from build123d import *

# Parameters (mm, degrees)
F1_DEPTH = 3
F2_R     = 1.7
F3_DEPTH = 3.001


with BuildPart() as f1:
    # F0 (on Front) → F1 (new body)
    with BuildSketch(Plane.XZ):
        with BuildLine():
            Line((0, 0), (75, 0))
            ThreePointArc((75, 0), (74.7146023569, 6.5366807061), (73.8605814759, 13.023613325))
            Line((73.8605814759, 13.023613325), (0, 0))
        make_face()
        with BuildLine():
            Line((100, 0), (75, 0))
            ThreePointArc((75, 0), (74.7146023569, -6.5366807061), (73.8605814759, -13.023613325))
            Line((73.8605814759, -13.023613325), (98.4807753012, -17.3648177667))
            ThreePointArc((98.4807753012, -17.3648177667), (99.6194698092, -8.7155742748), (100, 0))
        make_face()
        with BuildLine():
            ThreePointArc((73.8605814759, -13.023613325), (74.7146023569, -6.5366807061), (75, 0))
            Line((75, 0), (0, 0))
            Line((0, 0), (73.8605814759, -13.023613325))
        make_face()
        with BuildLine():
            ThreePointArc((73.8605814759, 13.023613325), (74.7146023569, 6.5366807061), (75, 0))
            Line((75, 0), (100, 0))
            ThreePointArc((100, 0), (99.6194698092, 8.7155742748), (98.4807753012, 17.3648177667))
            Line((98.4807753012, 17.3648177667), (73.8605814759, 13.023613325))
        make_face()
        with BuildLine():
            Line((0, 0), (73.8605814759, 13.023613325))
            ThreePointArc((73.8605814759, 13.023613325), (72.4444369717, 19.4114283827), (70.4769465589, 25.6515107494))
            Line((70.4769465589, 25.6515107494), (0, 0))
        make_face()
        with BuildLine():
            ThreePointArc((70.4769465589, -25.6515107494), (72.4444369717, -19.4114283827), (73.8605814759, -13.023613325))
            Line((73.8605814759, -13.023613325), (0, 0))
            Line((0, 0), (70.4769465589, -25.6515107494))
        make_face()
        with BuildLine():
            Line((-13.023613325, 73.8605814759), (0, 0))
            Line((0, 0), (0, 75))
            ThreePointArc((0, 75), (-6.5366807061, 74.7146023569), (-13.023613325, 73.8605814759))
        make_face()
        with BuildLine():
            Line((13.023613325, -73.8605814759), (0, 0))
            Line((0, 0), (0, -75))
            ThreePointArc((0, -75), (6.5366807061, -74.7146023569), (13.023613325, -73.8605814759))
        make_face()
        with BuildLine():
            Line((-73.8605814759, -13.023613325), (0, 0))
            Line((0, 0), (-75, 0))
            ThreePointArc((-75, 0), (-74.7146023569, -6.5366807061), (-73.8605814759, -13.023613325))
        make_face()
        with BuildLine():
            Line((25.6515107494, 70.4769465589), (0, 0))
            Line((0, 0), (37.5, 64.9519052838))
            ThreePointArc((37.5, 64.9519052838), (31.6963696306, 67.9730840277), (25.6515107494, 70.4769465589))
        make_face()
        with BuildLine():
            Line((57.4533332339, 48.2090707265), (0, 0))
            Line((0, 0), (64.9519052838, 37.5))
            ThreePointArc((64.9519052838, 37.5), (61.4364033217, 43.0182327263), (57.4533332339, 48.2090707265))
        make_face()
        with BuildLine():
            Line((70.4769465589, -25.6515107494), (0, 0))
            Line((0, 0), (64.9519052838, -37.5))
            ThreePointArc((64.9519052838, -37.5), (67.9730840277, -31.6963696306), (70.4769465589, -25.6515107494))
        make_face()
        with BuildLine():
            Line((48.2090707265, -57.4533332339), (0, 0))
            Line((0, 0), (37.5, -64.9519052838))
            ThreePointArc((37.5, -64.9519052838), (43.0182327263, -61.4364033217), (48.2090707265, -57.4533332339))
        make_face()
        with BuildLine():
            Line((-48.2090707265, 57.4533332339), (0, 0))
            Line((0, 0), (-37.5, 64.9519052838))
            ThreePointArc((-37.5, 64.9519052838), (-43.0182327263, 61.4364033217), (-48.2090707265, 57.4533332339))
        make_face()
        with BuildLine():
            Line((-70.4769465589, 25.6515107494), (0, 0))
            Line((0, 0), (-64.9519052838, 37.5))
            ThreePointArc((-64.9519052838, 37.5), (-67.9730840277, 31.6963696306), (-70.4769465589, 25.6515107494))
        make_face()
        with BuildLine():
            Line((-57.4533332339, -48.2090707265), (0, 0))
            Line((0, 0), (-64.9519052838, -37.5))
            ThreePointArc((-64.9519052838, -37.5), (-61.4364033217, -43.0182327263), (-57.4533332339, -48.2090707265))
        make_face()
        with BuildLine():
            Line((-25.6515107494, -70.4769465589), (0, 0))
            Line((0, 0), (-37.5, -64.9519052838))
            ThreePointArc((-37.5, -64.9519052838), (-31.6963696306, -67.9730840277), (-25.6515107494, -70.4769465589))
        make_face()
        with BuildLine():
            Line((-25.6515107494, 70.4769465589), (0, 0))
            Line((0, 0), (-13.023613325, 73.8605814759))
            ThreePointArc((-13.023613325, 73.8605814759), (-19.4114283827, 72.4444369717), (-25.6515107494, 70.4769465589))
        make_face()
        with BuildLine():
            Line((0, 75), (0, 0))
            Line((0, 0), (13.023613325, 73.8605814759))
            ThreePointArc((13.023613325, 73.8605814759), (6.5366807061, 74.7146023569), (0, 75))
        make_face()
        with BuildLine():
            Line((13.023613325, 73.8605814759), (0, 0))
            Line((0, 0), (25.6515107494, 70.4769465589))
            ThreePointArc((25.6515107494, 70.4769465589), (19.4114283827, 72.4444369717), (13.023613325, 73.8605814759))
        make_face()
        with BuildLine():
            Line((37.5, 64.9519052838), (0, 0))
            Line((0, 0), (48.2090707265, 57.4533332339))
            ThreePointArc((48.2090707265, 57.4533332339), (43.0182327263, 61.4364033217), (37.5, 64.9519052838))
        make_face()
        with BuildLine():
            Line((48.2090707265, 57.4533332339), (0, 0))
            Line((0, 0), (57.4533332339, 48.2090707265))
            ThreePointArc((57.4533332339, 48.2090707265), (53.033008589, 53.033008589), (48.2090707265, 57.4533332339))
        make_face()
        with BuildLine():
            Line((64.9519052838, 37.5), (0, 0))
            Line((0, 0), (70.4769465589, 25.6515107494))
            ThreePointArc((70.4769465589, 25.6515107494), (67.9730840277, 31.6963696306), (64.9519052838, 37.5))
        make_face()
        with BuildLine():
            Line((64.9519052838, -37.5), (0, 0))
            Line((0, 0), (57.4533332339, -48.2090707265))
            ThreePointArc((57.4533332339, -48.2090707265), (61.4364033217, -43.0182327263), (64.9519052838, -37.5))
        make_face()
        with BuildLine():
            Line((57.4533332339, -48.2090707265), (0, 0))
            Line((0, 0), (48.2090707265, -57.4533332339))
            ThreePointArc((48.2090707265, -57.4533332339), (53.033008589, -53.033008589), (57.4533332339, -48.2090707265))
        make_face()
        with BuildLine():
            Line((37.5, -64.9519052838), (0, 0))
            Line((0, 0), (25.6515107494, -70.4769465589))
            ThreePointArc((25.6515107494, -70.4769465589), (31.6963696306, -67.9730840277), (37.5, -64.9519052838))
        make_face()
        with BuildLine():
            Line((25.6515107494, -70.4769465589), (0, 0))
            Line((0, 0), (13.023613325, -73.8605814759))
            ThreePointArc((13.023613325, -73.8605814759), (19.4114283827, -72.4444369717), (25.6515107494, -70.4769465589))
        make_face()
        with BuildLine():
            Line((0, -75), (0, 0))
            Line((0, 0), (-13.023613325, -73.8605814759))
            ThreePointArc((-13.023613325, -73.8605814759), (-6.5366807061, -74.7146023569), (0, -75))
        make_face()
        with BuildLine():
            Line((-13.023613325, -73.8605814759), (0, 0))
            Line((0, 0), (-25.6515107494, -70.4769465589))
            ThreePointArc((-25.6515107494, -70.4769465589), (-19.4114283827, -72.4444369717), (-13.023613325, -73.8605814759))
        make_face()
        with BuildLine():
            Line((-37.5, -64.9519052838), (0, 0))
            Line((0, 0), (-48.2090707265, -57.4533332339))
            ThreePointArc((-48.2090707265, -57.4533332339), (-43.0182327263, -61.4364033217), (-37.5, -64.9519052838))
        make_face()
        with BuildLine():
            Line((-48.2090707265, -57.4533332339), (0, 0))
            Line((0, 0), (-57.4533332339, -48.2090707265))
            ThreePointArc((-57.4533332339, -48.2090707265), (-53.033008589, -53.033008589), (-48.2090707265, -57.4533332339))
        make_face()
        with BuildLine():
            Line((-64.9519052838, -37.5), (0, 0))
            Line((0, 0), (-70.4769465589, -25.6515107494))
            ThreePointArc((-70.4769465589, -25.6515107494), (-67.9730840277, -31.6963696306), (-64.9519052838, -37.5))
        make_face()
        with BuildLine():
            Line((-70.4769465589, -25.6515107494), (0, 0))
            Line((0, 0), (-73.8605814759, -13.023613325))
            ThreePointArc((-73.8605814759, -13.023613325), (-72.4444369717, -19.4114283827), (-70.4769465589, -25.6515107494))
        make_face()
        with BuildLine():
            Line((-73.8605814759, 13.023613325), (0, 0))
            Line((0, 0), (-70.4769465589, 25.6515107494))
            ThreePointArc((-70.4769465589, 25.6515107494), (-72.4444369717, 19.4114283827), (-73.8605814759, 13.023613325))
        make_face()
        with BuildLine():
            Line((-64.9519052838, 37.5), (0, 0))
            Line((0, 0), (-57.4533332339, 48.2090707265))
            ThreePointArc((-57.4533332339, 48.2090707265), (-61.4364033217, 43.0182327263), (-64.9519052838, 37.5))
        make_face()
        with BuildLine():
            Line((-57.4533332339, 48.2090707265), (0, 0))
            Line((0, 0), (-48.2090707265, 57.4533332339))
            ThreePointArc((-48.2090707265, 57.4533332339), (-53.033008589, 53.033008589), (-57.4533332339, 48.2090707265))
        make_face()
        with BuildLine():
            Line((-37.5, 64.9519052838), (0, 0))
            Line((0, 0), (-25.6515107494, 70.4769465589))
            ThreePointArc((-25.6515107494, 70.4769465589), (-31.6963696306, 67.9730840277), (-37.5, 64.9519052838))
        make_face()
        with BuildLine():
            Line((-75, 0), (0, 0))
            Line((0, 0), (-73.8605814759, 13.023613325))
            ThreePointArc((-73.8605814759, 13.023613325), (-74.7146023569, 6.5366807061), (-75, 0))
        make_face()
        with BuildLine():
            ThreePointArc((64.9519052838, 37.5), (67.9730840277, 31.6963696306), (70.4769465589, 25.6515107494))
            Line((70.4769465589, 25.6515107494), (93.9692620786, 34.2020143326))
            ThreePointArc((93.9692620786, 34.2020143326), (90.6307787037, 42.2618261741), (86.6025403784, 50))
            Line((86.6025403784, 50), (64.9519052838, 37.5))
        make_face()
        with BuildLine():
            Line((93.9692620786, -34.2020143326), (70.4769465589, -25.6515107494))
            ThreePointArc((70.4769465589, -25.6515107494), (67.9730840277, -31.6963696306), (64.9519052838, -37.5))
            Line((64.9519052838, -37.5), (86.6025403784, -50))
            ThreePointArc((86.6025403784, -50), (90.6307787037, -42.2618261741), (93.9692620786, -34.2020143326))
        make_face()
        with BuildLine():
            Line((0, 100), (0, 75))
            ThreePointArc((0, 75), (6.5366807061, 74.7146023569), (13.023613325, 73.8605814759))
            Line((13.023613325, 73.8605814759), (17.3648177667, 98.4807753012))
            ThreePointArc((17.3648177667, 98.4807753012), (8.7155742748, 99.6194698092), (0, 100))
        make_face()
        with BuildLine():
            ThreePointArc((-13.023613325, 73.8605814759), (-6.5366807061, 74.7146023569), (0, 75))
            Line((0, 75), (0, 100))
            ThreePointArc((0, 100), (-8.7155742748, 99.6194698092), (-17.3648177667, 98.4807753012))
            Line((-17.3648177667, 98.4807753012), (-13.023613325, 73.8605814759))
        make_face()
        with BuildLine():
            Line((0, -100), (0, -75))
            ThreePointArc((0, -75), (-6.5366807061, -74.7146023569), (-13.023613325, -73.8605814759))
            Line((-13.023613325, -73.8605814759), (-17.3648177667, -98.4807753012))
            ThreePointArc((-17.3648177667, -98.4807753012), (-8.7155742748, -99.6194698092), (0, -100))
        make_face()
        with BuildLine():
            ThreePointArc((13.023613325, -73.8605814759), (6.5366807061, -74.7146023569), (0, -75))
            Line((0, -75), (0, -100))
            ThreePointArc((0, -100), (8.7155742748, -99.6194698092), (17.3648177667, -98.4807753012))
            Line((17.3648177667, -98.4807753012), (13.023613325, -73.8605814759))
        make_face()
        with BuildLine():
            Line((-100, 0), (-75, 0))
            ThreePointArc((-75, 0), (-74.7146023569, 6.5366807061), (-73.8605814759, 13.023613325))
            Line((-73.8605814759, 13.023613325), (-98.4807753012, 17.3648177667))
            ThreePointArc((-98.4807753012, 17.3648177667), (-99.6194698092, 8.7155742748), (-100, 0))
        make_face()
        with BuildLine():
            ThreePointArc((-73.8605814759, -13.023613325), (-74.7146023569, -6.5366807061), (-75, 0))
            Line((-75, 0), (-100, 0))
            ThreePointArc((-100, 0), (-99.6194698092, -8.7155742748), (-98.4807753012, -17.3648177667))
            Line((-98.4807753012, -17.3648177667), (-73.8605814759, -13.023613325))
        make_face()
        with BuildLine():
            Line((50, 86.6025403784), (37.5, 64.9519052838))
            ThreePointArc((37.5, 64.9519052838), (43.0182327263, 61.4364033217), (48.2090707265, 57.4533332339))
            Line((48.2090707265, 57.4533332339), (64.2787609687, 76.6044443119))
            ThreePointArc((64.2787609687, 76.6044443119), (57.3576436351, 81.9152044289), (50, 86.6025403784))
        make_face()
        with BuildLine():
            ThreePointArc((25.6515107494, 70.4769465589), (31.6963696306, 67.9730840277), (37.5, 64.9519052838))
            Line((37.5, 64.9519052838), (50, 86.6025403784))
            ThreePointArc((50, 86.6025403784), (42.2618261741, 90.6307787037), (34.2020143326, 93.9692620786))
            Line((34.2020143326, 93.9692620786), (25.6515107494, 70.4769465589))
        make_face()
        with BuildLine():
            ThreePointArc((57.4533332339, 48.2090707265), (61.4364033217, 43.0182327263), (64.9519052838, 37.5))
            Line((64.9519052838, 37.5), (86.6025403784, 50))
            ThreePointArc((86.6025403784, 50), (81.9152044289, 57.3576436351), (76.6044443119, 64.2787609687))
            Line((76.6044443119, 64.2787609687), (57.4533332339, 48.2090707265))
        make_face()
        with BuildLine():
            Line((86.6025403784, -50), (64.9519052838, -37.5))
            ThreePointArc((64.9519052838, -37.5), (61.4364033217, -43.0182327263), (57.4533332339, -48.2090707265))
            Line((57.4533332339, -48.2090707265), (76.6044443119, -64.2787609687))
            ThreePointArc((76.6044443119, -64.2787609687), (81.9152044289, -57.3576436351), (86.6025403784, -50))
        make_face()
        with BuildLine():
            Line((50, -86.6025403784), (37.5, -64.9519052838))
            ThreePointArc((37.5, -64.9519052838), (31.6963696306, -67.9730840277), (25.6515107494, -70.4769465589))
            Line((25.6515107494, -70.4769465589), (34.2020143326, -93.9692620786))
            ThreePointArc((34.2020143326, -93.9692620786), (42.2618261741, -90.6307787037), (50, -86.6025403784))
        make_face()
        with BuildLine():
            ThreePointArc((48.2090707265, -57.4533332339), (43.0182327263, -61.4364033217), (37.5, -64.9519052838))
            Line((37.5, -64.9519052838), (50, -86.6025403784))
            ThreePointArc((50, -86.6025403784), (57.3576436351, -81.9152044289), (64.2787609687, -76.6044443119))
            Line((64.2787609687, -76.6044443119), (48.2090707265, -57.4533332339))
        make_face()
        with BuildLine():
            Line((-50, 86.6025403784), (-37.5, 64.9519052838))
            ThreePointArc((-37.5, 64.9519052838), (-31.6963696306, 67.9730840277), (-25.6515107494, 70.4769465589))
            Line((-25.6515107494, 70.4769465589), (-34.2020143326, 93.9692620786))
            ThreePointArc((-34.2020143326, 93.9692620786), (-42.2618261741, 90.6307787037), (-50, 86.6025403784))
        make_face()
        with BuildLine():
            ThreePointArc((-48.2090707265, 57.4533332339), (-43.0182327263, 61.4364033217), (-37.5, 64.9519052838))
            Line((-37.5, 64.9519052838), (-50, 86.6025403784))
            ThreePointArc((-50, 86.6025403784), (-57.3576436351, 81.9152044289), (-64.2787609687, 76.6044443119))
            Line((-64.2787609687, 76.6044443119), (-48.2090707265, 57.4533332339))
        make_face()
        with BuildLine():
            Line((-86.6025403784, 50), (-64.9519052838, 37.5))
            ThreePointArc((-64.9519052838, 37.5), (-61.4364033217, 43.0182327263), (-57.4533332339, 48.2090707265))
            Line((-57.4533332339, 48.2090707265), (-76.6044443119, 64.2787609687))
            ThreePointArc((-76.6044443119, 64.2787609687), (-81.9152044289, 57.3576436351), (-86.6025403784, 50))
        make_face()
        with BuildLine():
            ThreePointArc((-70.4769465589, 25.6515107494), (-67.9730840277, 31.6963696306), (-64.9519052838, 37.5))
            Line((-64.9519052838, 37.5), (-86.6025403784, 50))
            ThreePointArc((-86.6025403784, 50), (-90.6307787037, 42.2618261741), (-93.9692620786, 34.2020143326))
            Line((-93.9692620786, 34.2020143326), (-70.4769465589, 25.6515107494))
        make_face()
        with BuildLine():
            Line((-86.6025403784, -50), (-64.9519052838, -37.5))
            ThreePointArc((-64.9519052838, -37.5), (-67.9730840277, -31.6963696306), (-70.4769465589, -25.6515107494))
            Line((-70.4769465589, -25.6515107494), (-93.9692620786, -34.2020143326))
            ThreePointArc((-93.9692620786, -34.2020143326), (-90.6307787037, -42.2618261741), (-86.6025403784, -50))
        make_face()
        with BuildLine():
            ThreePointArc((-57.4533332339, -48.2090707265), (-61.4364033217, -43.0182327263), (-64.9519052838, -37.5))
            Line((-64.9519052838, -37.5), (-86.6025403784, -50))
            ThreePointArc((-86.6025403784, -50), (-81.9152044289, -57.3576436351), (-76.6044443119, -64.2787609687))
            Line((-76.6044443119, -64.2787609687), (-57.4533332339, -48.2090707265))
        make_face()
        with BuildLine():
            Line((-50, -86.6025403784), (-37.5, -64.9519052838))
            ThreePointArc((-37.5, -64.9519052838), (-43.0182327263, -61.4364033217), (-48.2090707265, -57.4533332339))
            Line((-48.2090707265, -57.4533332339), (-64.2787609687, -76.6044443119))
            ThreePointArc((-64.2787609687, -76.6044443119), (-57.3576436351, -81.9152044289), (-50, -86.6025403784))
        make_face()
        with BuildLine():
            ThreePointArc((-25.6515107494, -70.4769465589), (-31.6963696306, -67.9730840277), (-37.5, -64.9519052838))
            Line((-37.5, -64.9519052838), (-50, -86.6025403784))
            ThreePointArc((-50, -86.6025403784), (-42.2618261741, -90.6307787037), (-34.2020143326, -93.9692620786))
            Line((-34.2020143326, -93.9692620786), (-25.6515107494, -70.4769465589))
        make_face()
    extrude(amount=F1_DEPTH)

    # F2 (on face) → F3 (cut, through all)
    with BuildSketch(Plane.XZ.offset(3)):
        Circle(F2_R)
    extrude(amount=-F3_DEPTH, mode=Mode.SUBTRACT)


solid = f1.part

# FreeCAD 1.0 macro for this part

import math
import FreeCAD as App
import Part
import Sketcher

V = App.Vector
Q = App.Units.Quantity

doc = App.newDocument("Part")
params = doc.addObject("Spreadsheet::Sheet", "Params")
for row, (alias, value) in enumerate([
    ("sketch1_radius", "100 mm"),
    ("sketch1_radius2", "75 mm"),
    ("pad1_length", "3 mm"),
    ("sketch2_diameter", "3.4 mm"),
], start=1):
    params.set(f"A{row}", alias)
    params.set(f"B{row}", "=" + value)
    params.setAlias(f"B{row}", alias)

body = doc.addObject("PartDesign::Body", "Body")

# Sketch on XZ plane
sketch1 = body.newObject("Sketcher::SketchObject", "Sketch")
sketch1.AttachmentSupport = (doc.getObject("XZ_Plane"), [""])
sketch1.MapMode = "FlatFace"
sketch1.addGeometry([
    Part.LineSegment(V(74, -13, 0), V(98, -17, 0)),  # 0
    Part.ArcOfCircle(Part.Circle(V(0, 0, 0), V(0, 0, 1), 100), math.radians(-10), math.radians(0)),  # 1
    Part.ArcOfCircle(Part.Circle(V(0, 0, 0), V(0, 0, 1), 100), math.radians(0), math.radians(10)),  # 2
    Part.LineSegment(V(98, 17, 0), V(74, 13, 0)),  # 3
    Part.ArcOfCircle(Part.Circle(V(0, 0, 0), V(0, 0, 1), 75), math.radians(10), math.radians(20)),  # 4
    Part.LineSegment(V(70, 26, 0), V(94, 34, 0)),  # 5
    Part.ArcOfCircle(Part.Circle(V(0, 0, 0), V(0, 0, 1), 100), math.radians(20), math.radians(30)),  # 6
    Part.ArcOfCircle(Part.Circle(V(0, 0, 0), V(0, 0, 1), 100), math.radians(30), math.radians(40)),  # 7
    Part.LineSegment(V(77, 64, 0), V(57, 48, 0)),  # 8
    Part.ArcOfCircle(Part.Circle(V(0, 0, 0), V(0, 0, 1), 75), math.radians(40), math.radians(50)),  # 9
    Part.LineSegment(V(48, 57, 0), V(64, 77, 0)),  # 10
    Part.ArcOfCircle(Part.Circle(V(0, 0, 0), V(0, 0, 1), 100), math.radians(50), math.radians(60)),  # 11
    Part.ArcOfCircle(Part.Circle(V(0, 0, 0), V(0, 0, 1), 100), math.radians(60), math.radians(70)),  # 12
    Part.LineSegment(V(34, 94, 0), V(26, 70, 0)),  # 13
    Part.ArcOfCircle(Part.Circle(V(0, 0, 0), V(0, 0, 1), 75), math.radians(70), math.radians(80)),  # 14
    Part.LineSegment(V(13, 74, 0), V(17, 98, 0)),  # 15
    Part.ArcOfCircle(Part.Circle(V(0, 0, 0), V(0, 0, 1), 100), math.radians(80), math.radians(90)),  # 16
    Part.ArcOfCircle(Part.Circle(V(0, 0, 0), V(0, 0, 1), 100), math.radians(90), math.radians(100)),  # 17
    Part.LineSegment(V(-17, 98, 0), V(-13, 74, 0)),  # 18
    Part.ArcOfCircle(Part.Circle(V(0, 0, 0), V(0, 0, 1), 75), math.radians(100), math.radians(110)),  # 19
    Part.LineSegment(V(-26, 70, 0), V(-34, 94, 0)),  # 20
    Part.ArcOfCircle(Part.Circle(V(0, 0, 0), V(0, 0, 1), 100), math.radians(110), math.radians(120)),  # 21
    Part.ArcOfCircle(Part.Circle(V(0, 0, 0), V(0, 0, 1), 100), math.radians(120), math.radians(130)),  # 22
    Part.LineSegment(V(-64, 77, 0), V(-48, 57, 0)),  # 23
    Part.ArcOfCircle(Part.Circle(V(0, 0, 0), V(0, 0, 1), 75), math.radians(130), math.radians(140)),  # 24
    Part.LineSegment(V(-57, 48, 0), V(-77, 64, 0)),  # 25
    Part.ArcOfCircle(Part.Circle(V(0, 0, 0), V(0, 0, 1), 100), math.radians(140), math.radians(150)),  # 26
    Part.ArcOfCircle(Part.Circle(V(0, 0, 0), V(0, 0, 1), 100), math.radians(150), math.radians(160)),  # 27
    Part.LineSegment(V(-94, 34, 0), V(-70, 26, 0)),  # 28
    Part.ArcOfCircle(Part.Circle(V(0, 0, 0), V(0, 0, 1), 75), math.radians(160), math.radians(170)),  # 29
    Part.LineSegment(V(-74, 13, 0), V(-98, 17, 0)),  # 30
    Part.ArcOfCircle(Part.Circle(V(0, 0, 0), V(0, 0, 1), 100), math.radians(170), math.radians(180)),  # 31
    Part.ArcOfCircle(Part.Circle(V(0, 0, 0), V(0, 0, 1), 100), math.radians(180), math.radians(190)),  # 32
    Part.LineSegment(V(-98, -17, 0), V(-74, -13, 0)),  # 33
    Part.ArcOfCircle(Part.Circle(V(0, 0, 0), V(0, 0, 1), 75), math.radians(-170), math.radians(-160)),  # 34
    Part.LineSegment(V(-70, -26, 0), V(-94, -34, 0)),  # 35
    Part.ArcOfCircle(Part.Circle(V(0, 0, 0), V(0, 0, 1), 100), math.radians(-160), math.radians(-150)),  # 36
    Part.ArcOfCircle(Part.Circle(V(0, 0, 0), V(0, 0, 1), 100), math.radians(-150), math.radians(-140)),  # 37
    Part.LineSegment(V(-77, -64, 0), V(-57, -48, 0)),  # 38
    Part.ArcOfCircle(Part.Circle(V(0, 0, 0), V(0, 0, 1), 75), math.radians(-140), math.radians(-130)),  # 39
    Part.LineSegment(V(-48, -57, 0), V(-64, -77, 0)),  # 40
    Part.ArcOfCircle(Part.Circle(V(0, 0, 0), V(0, 0, 1), 100), math.radians(-130), math.radians(-120)),  # 41
    Part.ArcOfCircle(Part.Circle(V(0, 0, 0), V(0, 0, 1), 100), math.radians(-120), math.radians(-110)),  # 42
    Part.LineSegment(V(-34, -94, 0), V(-26, -70, 0)),  # 43
    Part.ArcOfCircle(Part.Circle(V(0, 0, 0), V(0, 0, 1), 75), math.radians(-110), math.radians(-100)),  # 44
    Part.LineSegment(V(-13, -74, 0), V(-17, -98, 0)),  # 45
    Part.ArcOfCircle(Part.Circle(V(0, 0, 0), V(0, 0, 1), 100), math.radians(-100), math.radians(-90)),  # 46
    Part.ArcOfCircle(Part.Circle(V(0, 0, 0), V(0, 0, 1), 100), math.radians(-90), math.radians(-80)),  # 47
    Part.LineSegment(V(17, -98, 0), V(13, -74, 0)),  # 48
    Part.ArcOfCircle(Part.Circle(V(0, 0, 0), V(0, 0, 1), 75), math.radians(-80), math.radians(-70)),  # 49
    Part.LineSegment(V(26, -70, 0), V(34, -94, 0)),  # 50
    Part.ArcOfCircle(Part.Circle(V(0, 0, 0), V(0, 0, 1), 100), math.radians(-70), math.radians(-60)),  # 51
    Part.ArcOfCircle(Part.Circle(V(0, 0, 0), V(0, 0, 1), 100), math.radians(-60), math.radians(-50)),  # 52
    Part.LineSegment(V(64, -77, 0), V(48, -57, 0)),  # 53
    Part.ArcOfCircle(Part.Circle(V(0, 0, 0), V(0, 0, 1), 75), math.radians(-50), math.radians(-40)),  # 54
    Part.LineSegment(V(57, -48, 0), V(77, -64, 0)),  # 55
    Part.ArcOfCircle(Part.Circle(V(0, 0, 0), V(0, 0, 1), 100), math.radians(-40), math.radians(-30)),  # 56
    Part.ArcOfCircle(Part.Circle(V(0, 0, 0), V(0, 0, 1), 100), math.radians(-30), math.radians(-20)),  # 57
    Part.LineSegment(V(94, -34, 0), V(70, -26, 0)),  # 58
    Part.ArcOfCircle(Part.Circle(V(0, 0, 0), V(0, 0, 1), 75), math.radians(-20), math.radians(-10)),  # 59
], False)
sketch1.addConstraint([
    Sketcher.Constraint("Coincident", 0, 2, 1, 1),
    Sketcher.Constraint("Tangent", 1, 2, 2, 1),
    Sketcher.Constraint("Coincident", 2, 2, 3, 1),
    Sketcher.Constraint("Coincident", 3, 2, 4, 1),
    Sketcher.Constraint("Coincident", 4, 2, 5, 1),
    Sketcher.Constraint("Coincident", 5, 2, 6, 1),
    Sketcher.Constraint("Tangent", 6, 2, 7, 1),
    Sketcher.Constraint("Coincident", 7, 2, 8, 1),
    Sketcher.Constraint("Coincident", 8, 2, 9, 1),
    Sketcher.Constraint("Coincident", 9, 2, 10, 1),
    Sketcher.Constraint("Coincident", 10, 2, 11, 1),
    Sketcher.Constraint("Tangent", 11, 2, 12, 1),
    Sketcher.Constraint("Coincident", 12, 2, 13, 1),
    Sketcher.Constraint("Coincident", 13, 2, 14, 1),
    Sketcher.Constraint("Coincident", 14, 2, 15, 1),
    Sketcher.Constraint("Coincident", 15, 2, 16, 1),
    Sketcher.Constraint("Tangent", 16, 2, 17, 1),
    Sketcher.Constraint("Coincident", 17, 2, 18, 1),
    Sketcher.Constraint("Coincident", 18, 2, 19, 1),
    Sketcher.Constraint("Coincident", 19, 2, 20, 1),
    Sketcher.Constraint("Coincident", 20, 2, 21, 1),
    Sketcher.Constraint("Tangent", 21, 2, 22, 1),
    Sketcher.Constraint("Coincident", 22, 2, 23, 1),
    Sketcher.Constraint("Coincident", 23, 2, 24, 1),
    Sketcher.Constraint("Coincident", 24, 2, 25, 1),
    Sketcher.Constraint("Coincident", 25, 2, 26, 1),
    Sketcher.Constraint("Tangent", 26, 2, 27, 1),
    Sketcher.Constraint("Coincident", 27, 2, 28, 1),
    Sketcher.Constraint("Coincident", 28, 2, 29, 1),
    Sketcher.Constraint("Coincident", 29, 2, 30, 1),
    Sketcher.Constraint("Coincident", 30, 2, 31, 1),
    Sketcher.Constraint("Tangent", 31, 2, 32, 1),
    Sketcher.Constraint("Coincident", 32, 2, 33, 1),
    Sketcher.Constraint("Coincident", 33, 2, 34, 1),
    Sketcher.Constraint("Coincident", 34, 2, 35, 1),
    Sketcher.Constraint("Coincident", 35, 2, 36, 1),
    Sketcher.Constraint("Tangent", 36, 2, 37, 1),
    Sketcher.Constraint("Coincident", 37, 2, 38, 1),
    Sketcher.Constraint("Coincident", 38, 2, 39, 1),
    Sketcher.Constraint("Coincident", 39, 2, 40, 1),
    Sketcher.Constraint("Coincident", 40, 2, 41, 1),
    Sketcher.Constraint("Tangent", 41, 2, 42, 1),
    Sketcher.Constraint("Coincident", 42, 2, 43, 1),
    Sketcher.Constraint("Coincident", 43, 2, 44, 1),
    Sketcher.Constraint("Coincident", 44, 2, 45, 1),
    Sketcher.Constraint("Coincident", 45, 2, 46, 1),
    Sketcher.Constraint("Tangent", 46, 2, 47, 1),
    Sketcher.Constraint("Coincident", 47, 2, 48, 1),
    Sketcher.Constraint("Coincident", 48, 2, 49, 1),
    Sketcher.Constraint("Coincident", 49, 2, 50, 1),
    Sketcher.Constraint("Coincident", 50, 2, 51, 1),
    Sketcher.Constraint("Tangent", 51, 2, 52, 1),
    Sketcher.Constraint("Coincident", 52, 2, 53, 1),
    Sketcher.Constraint("Coincident", 53, 2, 54, 1),
    Sketcher.Constraint("Coincident", 54, 2, 55, 1),
    Sketcher.Constraint("Coincident", 55, 2, 56, 1),
    Sketcher.Constraint("Tangent", 56, 2, 57, 1),
    Sketcher.Constraint("Coincident", 57, 2, 58, 1),
    Sketcher.Constraint("Coincident", 58, 2, 59, 1),
    Sketcher.Constraint("Coincident", 59, 2, 0, 1),
    Sketcher.Constraint("Coincident", 1, 3, -1, 1),
    Sketcher.Constraint("Coincident", 4, 3, -1, 1),
    Sketcher.Constraint("Coincident", 6, 3, -1, 1),
    Sketcher.Constraint("Coincident", 9, 3, -1, 1),
    Sketcher.Constraint("Coincident", 11, 3, -1, 1),
    Sketcher.Constraint("Coincident", 14, 3, -1, 1),
    Sketcher.Constraint("Coincident", 16, 3, -1, 1),
    Sketcher.Constraint("Coincident", 19, 3, -1, 1),
    Sketcher.Constraint("Coincident", 21, 3, -1, 1),
    Sketcher.Constraint("Coincident", 24, 3, -1, 1),
    Sketcher.Constraint("Coincident", 26, 3, -1, 1),
    Sketcher.Constraint("Coincident", 29, 3, -1, 1),
    Sketcher.Constraint("Coincident", 31, 3, -1, 1),
    Sketcher.Constraint("Coincident", 34, 3, -1, 1),
    Sketcher.Constraint("Coincident", 36, 3, -1, 1),
    Sketcher.Constraint("Coincident", 39, 3, -1, 1),
    Sketcher.Constraint("Coincident", 41, 3, -1, 1),
    Sketcher.Constraint("Coincident", 44, 3, -1, 1),
    Sketcher.Constraint("Coincident", 46, 3, -1, 1),
    Sketcher.Constraint("Coincident", 49, 3, -1, 1),
    Sketcher.Constraint("Coincident", 51, 3, -1, 1),
    Sketcher.Constraint("Coincident", 54, 3, -1, 1),
    Sketcher.Constraint("Coincident", 56, 3, -1, 1),
    Sketcher.Constraint("Coincident", 59, 3, -1, 1),
    Sketcher.Constraint("Equal", 1, 2),
    Sketcher.Constraint("Equal", 2, 6),
    Sketcher.Constraint("Equal", 6, 7),
    Sketcher.Constraint("Equal", 4, 9),
    Sketcher.Constraint("Equal", 7, 11),
    Sketcher.Constraint("Equal", 11, 12),
    Sketcher.Constraint("Equal", 9, 14),
    Sketcher.Constraint("Equal", 12, 16),
    Sketcher.Constraint("Equal", 16, 17),
    Sketcher.Constraint("Equal", 14, 19),
    Sketcher.Constraint("Equal", 17, 21),
    Sketcher.Constraint("Equal", 21, 22),
    Sketcher.Constraint("Equal", 19, 24),
    Sketcher.Constraint("Equal", 22, 26),
    Sketcher.Constraint("Equal", 26, 27),
    Sketcher.Constraint("Equal", 24, 29),
    Sketcher.Constraint("Equal", 27, 31),
    Sketcher.Constraint("Equal", 31, 32),
    Sketcher.Constraint("Equal", 29, 34),
    Sketcher.Constraint("Equal", 32, 36),
    Sketcher.Constraint("Equal", 36, 37),
    Sketcher.Constraint("Equal", 34, 39),
    Sketcher.Constraint("Equal", 37, 41),
    Sketcher.Constraint("Equal", 41, 42),
    Sketcher.Constraint("Equal", 39, 44),
    Sketcher.Constraint("Equal", 42, 46),
    Sketcher.Constraint("Equal", 46, 47),
    Sketcher.Constraint("Equal", 44, 49),
    Sketcher.Constraint("Equal", 47, 51),
    Sketcher.Constraint("Equal", 51, 52),
    Sketcher.Constraint("Equal", 49, 54),
    Sketcher.Constraint("Equal", 52, 56),
    Sketcher.Constraint("Equal", 56, 57),
    Sketcher.Constraint("Equal", 54, 59),
    Sketcher.Constraint("PointOnObject", 1, 2, -1),
    Sketcher.Constraint("PointOnObject", 16, 2, -2),
    Sketcher.Constraint("PointOnObject", 31, 2, -1),
    Sketcher.Constraint("PointOnObject", 46, 2, -2),
    Sketcher.Constraint("Perpendicular", 0, 15),
    Sketcher.Constraint("Perpendicular", 3, 18),
    Sketcher.Constraint("Perpendicular", 5, 20),
    Sketcher.Constraint("Perpendicular", 8, 23),
    Sketcher.Constraint("Perpendicular", 10, 25),
    Sketcher.Constraint("Perpendicular", 13, 28),
    Sketcher.Constraint("Perpendicular", 15, 30),
    Sketcher.Constraint("Perpendicular", 18, 33),
    Sketcher.Constraint("Perpendicular", 20, 35),
    Sketcher.Constraint("Perpendicular", 23, 38),
    Sketcher.Constraint("Perpendicular", 25, 40),
    Sketcher.Constraint("Perpendicular", 28, 43),
    Sketcher.Constraint("Perpendicular", 30, 45),
    Sketcher.Constraint("Perpendicular", 33, 48),
    Sketcher.Constraint("Perpendicular", 35, 50),
    Sketcher.Constraint("Perpendicular", 38, 53),
    Sketcher.Constraint("Perpendicular", 40, 55),
    Sketcher.Constraint("Perpendicular", 43, 58),
    Sketcher.Constraint("Horizontal", 15, 2, 17, 2),
    Sketcher.Constraint("Horizontal", 14, 2, 18, 2),
    Sketcher.Constraint("Horizontal", 13, 2, 19, 2),
    Sketcher.Constraint("Horizontal", 12, 2, 20, 2),
    Sketcher.Constraint("Horizontal", 11, 2, 21, 2),
    Sketcher.Constraint("Horizontal", 10, 2, 22, 2),
    Sketcher.Constraint("Horizontal", 9, 2, 23, 2),
    Sketcher.Constraint("Horizontal", 8, 2, 24, 2),
    Sketcher.Constraint("Horizontal", 6, 2, 26, 2),
    Sketcher.Constraint("Horizontal", 5, 2, 27, 2),
    Sketcher.Constraint("Horizontal", 3, 2, 29, 2),
    Sketcher.Constraint("Horizontal", 0, 2, 32, 2),
    Sketcher.Constraint("Horizontal", 45, 2, 47, 2),
    Sketcher.Constraint("Horizontal", 43, 2, 49, 2),
    Sketcher.Constraint("Horizontal", 41, 2, 51, 2),
    Sketcher.Constraint("Horizontal", 40, 2, 52, 2),
    Sketcher.Constraint("Horizontal", 38, 2, 54, 2),
    Sketcher.Constraint("Horizontal", 36, 2, 56, 2),
    Sketcher.Constraint("Horizontal", 35, 2, 57, 2),
    Sketcher.Constraint("Vertical", 0, 2, 2, 2),
    Sketcher.Constraint("Vertical", 28, 2, 34, 2),
    Sketcher.Constraint("Vertical", 26, 2, 36, 2),
    Sketcher.Constraint("Vertical", 25, 2, 37, 2),
    Sketcher.Constraint("Vertical", 23, 2, 39, 2),
    Sketcher.Constraint("Vertical", 21, 2, 41, 2),
    Sketcher.Constraint("Vertical", 20, 2, 42, 2),
    Sketcher.Constraint("Vertical", 18, 2, 44, 2),
    Sketcher.Constraint("Radius", 1, 100.0),
    Sketcher.Constraint("Radius", 4, 75.0),
    Sketcher.Constraint("Angle", 0, Q("-10 deg")),
    Sketcher.Constraint("Angle", 5, Q("20 deg")),
    Sketcher.Constraint("Angle", 8, Q("-140 deg")),
    Sketcher.Constraint("DistanceY", -1, 1, 6, 2, 50.0),
    Sketcher.Constraint("DistanceX", -1, 1, 11, 2, 50.0),
    Sketcher.Constraint("DistanceX", -1, 1, 3, 2, 73.860581),
    Sketcher.Constraint("DistanceY", -1, 1, 4, 2, 25.651511),
    Sketcher.Constraint("DistanceY", -1, 1, 7, 2, 64.278761),
    Sketcher.Constraint("DistanceX", -1, 1, 9, 2, 48.209071),
    Sketcher.Constraint("DistanceX", -1, 1, 13, 2, 25.651511),
    Sketcher.Constraint("DistanceY", -1, 1, 14, 2, 73.860581),
])
sketch1.setExpression("Constraints[167]", "Params.sketch1_radius")
sketch1.setExpression("Constraints[168]", "Params.sketch1_radius2")
pad1 = body.newObject("PartDesign::Pad", "Pad")
pad1.Profile = sketch1
pad1.setExpression("Length", "Params.pad1_length")

# Sketch on XZ plane
sketch2 = body.newObject("Sketcher::SketchObject", "Sketch001")
sketch2.AttachmentSupport = (doc.getObject("XZ_Plane"), [""])
sketch2.MapMode = "FlatFace"
sketch2.AttachmentOffset = App.Placement(V(0, 0, 3), App.Rotation())
sketch2.addGeometry(Part.Circle(V(0, 0, 0), V(0, 0, 1), 1.7), False)
sketch2.addConstraint([
    Sketcher.Constraint("Coincident", 0, 3, -1, 1),
    Sketcher.Constraint("Diameter", 0, 3.4),
])
sketch2.setExpression("Constraints[1]", "Params.sketch2_diameter")
pocket1 = body.newObject("PartDesign::Pocket", "Pocket")
pocket1.Profile = sketch2
pocket1.Type = "ThroughAll"

doc.recompute()
